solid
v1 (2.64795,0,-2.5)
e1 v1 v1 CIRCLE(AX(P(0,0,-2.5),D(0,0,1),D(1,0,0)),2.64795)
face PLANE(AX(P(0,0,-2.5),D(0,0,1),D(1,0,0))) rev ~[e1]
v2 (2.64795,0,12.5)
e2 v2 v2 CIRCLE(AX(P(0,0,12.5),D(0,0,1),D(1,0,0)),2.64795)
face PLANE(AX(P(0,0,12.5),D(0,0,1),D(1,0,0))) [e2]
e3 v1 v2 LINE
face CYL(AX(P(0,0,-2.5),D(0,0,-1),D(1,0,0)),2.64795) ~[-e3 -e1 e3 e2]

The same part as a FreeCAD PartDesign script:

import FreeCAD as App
import Part
import Sketcher

V = App.Vector
Q = App.Units.Quantity

doc = App.newDocument("Part")
body = doc.addObject("PartDesign::Body", "Body")

sketch1 = doc.addObject("Sketcher::SketchObject", "Sketch")
body.addObject(sketch1)
sketch1.AttachmentSupport = (doc.XY_Plane, [""])
sketch1.MapMode = "FlatFace"
sketch1.AttachmentOffset = App.Placement(V(0, 0, -2.5), App.Rotation())
sketch1.addGeometry(Part.Circle(V(0, 0, 0), V(0, 0, 1), 2.6), False)
sketch1.addConstraint(Sketcher.Constraint("Coincident", 0, 3, -1, 1))
sketch1.addConstraint(Sketcher.Constraint("Diameter", 0, Q("5.2959 mm")))
pad1 = doc.addObject("PartDesign::Pad", "Pad")
body.addObject(pad1)
pad1.Profile = sketch1
pad1.Length = 15

doc.recompute()
